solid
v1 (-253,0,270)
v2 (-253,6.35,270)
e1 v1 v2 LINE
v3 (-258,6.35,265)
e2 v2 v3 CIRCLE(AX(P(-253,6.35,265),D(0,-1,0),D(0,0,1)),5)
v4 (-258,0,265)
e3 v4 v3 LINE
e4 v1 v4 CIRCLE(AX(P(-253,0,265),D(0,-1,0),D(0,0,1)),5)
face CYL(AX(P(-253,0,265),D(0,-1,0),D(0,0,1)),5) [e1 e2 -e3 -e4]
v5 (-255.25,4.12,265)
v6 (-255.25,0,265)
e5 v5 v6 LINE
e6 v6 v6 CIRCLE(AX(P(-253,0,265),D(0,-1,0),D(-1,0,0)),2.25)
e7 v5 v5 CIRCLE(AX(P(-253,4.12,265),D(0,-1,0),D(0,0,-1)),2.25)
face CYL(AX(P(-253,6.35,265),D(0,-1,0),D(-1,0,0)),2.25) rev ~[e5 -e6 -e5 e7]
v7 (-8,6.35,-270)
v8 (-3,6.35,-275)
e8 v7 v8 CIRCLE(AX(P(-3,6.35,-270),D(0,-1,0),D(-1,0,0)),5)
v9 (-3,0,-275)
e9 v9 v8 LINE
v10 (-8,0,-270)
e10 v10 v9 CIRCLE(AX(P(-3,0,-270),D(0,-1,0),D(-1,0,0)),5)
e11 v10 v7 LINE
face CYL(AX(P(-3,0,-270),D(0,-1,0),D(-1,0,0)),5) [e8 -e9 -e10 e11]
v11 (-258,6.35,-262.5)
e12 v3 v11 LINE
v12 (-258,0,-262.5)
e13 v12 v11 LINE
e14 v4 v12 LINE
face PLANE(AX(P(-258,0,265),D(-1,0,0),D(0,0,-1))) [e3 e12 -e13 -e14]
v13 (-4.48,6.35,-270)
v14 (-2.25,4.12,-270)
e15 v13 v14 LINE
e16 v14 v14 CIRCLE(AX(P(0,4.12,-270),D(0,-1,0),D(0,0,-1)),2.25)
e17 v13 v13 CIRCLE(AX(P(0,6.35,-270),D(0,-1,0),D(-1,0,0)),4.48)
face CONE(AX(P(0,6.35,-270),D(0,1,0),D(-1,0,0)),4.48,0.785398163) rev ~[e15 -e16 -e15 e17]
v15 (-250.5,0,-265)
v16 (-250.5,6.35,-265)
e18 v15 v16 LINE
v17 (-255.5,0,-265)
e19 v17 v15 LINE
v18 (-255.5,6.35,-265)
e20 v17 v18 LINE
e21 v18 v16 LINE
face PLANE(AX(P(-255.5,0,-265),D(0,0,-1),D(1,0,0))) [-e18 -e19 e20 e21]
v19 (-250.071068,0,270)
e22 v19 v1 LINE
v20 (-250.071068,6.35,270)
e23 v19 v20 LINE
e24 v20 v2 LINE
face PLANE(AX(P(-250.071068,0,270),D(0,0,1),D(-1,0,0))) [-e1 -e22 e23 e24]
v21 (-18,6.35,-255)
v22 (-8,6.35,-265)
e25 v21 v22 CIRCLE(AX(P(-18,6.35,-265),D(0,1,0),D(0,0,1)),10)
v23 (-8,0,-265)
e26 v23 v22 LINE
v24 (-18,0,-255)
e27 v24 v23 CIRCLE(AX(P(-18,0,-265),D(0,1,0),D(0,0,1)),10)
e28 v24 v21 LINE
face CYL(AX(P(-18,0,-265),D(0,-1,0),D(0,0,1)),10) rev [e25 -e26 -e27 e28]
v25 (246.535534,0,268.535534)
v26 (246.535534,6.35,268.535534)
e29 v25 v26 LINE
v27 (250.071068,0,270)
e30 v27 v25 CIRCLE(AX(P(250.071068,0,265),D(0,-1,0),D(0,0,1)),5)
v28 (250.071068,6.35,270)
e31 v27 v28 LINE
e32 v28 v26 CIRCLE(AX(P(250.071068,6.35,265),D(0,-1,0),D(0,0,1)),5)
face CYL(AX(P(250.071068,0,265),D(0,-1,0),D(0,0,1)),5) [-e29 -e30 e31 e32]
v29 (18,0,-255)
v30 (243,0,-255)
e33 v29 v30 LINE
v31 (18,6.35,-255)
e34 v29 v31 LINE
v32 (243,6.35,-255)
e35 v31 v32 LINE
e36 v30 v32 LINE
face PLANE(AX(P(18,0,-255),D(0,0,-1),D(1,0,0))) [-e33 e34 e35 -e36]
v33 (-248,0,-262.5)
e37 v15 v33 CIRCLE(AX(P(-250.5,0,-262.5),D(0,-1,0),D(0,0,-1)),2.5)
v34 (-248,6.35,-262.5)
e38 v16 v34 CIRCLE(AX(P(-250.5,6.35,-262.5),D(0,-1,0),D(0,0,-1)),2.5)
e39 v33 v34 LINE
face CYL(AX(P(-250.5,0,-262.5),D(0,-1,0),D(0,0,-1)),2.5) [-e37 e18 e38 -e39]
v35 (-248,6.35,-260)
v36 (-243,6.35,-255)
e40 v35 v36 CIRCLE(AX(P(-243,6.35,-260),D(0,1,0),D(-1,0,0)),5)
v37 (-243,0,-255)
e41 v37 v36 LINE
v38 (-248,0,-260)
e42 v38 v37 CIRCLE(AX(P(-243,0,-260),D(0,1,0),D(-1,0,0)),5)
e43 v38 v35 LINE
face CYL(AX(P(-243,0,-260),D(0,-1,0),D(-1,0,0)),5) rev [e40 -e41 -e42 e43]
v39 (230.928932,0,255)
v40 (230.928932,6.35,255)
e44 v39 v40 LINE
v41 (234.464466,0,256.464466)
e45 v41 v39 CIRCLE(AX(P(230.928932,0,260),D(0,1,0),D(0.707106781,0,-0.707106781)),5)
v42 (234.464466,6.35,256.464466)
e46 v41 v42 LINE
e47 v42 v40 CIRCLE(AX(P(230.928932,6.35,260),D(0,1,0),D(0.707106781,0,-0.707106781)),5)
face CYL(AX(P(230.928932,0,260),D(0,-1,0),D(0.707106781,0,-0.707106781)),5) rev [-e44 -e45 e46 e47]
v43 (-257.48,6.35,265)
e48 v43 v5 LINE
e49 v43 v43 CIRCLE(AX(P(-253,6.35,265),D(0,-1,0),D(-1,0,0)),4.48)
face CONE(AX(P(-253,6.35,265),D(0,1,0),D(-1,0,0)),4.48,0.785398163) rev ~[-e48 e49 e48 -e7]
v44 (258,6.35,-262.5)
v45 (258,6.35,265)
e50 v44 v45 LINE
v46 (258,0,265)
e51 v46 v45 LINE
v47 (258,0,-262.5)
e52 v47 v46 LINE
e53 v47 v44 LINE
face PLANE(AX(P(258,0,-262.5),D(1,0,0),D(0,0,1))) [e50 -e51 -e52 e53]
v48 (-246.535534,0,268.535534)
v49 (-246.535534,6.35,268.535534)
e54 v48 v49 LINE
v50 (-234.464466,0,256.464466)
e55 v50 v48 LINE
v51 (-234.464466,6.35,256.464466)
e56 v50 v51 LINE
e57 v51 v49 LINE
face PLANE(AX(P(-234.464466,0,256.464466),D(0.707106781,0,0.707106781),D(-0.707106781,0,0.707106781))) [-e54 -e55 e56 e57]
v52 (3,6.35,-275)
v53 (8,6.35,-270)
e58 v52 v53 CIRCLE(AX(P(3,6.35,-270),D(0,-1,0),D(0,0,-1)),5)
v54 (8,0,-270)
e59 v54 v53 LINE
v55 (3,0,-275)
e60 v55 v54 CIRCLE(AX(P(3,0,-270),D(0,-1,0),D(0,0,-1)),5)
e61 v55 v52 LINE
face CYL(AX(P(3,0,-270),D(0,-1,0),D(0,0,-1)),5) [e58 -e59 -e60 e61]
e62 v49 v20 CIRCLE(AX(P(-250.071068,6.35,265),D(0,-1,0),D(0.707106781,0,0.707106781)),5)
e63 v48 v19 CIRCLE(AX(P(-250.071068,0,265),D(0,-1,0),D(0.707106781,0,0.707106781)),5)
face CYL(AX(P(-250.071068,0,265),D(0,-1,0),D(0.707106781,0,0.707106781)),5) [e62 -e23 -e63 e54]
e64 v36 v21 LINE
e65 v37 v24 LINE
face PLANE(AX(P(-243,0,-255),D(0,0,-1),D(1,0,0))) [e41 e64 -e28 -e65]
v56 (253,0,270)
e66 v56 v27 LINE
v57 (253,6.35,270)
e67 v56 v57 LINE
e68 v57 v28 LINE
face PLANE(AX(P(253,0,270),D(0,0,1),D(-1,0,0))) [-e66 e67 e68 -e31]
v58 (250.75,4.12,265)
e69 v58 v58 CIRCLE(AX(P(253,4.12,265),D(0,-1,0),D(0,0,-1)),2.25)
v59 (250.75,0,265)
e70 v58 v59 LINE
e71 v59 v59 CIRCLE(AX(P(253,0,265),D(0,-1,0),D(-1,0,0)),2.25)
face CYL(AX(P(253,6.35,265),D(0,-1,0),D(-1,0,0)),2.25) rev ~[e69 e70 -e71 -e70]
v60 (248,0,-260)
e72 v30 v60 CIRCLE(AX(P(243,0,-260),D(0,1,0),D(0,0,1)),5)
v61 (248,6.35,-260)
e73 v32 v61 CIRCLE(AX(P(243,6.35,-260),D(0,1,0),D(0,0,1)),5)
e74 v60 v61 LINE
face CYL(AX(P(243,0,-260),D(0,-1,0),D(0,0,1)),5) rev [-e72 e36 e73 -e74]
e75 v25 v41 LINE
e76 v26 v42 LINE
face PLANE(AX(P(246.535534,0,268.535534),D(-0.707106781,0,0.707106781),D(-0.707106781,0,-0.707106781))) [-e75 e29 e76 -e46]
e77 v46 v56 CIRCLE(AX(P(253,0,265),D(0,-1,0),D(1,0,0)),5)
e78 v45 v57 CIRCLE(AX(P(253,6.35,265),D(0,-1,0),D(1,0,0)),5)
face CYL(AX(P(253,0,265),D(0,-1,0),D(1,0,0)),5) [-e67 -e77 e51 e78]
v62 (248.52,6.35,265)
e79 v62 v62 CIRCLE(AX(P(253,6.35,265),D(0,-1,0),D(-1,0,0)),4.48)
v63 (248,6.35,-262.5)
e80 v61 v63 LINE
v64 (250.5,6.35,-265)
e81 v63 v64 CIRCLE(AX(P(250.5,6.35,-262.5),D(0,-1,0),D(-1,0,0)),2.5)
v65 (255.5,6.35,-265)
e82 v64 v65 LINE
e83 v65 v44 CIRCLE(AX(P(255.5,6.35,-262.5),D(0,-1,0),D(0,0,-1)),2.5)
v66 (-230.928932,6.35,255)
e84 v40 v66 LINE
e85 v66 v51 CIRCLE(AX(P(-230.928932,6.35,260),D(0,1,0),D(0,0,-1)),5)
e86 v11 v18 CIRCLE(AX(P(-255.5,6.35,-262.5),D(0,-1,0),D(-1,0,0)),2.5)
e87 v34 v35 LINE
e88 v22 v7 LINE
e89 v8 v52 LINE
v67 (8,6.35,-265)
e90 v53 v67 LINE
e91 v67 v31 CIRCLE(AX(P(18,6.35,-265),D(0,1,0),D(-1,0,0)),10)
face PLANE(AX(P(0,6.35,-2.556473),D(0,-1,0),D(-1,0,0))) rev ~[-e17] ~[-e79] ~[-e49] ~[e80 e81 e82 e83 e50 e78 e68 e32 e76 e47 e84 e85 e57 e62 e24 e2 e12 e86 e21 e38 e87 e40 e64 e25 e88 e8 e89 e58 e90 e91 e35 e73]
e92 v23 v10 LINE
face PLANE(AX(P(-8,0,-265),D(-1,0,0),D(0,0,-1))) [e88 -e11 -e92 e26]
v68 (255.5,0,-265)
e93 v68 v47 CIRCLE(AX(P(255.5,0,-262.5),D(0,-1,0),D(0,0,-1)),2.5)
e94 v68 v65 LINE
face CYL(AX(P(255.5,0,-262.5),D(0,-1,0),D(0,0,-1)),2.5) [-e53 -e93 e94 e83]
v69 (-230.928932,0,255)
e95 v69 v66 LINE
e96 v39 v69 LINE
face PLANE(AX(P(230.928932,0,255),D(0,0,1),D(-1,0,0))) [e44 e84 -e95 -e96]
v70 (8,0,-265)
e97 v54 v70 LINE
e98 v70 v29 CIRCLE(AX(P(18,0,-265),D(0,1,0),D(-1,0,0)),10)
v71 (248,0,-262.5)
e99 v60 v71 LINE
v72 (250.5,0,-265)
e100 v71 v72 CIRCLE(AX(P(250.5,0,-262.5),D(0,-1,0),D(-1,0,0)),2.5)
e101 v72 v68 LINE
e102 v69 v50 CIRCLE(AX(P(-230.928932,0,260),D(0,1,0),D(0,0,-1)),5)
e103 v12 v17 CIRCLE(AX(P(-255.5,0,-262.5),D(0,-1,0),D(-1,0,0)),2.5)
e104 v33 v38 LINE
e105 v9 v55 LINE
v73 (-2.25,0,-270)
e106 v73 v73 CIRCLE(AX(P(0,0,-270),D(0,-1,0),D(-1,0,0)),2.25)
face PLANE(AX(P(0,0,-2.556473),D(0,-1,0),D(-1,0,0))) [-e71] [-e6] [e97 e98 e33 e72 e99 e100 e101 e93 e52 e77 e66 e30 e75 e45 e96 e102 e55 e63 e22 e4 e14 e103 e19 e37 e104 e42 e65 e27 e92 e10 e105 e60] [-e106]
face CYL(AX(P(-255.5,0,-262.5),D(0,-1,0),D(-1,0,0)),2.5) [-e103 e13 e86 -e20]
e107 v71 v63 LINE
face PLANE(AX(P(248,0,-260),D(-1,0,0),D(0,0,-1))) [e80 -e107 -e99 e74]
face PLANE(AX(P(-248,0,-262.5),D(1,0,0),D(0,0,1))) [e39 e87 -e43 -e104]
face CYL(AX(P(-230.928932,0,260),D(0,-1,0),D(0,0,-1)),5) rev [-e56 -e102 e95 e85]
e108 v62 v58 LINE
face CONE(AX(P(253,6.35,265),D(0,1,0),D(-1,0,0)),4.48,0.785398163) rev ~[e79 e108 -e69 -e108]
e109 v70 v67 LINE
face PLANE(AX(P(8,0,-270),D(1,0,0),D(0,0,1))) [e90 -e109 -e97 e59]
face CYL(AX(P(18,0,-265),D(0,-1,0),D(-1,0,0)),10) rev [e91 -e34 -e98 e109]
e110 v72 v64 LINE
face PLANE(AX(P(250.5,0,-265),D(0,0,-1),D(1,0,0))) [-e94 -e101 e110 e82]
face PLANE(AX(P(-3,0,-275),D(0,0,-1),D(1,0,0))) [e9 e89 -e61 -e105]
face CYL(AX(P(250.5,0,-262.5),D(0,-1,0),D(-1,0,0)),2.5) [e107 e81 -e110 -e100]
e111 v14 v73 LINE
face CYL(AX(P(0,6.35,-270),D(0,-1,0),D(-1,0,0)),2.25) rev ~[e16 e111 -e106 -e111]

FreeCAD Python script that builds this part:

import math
import FreeCAD as App
import Part
import Sketcher

doc = App.newDocument("Part")
body = doc.addObject("PartDesign::Body", "Body")

# Sketch on XZ plane
sketch1 = body.newObject("Sketcher::SketchObject", "Sketch")
sketch1.AttachmentSupport = (doc.getObject("XZ_Plane"), [""])
sketch1.MapMode = "FlatFace"
sketch1.addGeometry(Part.LineSegment(App.Vector(-230.9, 255, 0), App.Vector(230.9, 255, 0)), False)
sketch1.addGeometry(Part.ArcOfCircle(Part.Circle(App.Vector(230.9, 260, 0), App.Vector(0, 0, 1), 5), math.radians(-90), math.radians(-45)), False)
sketch1.addGeometry(Part.LineSegment(App.Vector(234.5, 256.5, 0), App.Vector(246.5, 268.5, 0)), False)
sketch1.addGeometry(Part.ArcOfCircle(Part.Circle(App.Vector(250.1, 265, 0), App.Vector(0, 0, 1), 5), math.radians(90), math.radians(135)), False)
sketch1.addGeometry(Part.LineSegment(App.Vector(250.1, 270, 0), App.Vector(253, 270, 0)), False)
sketch1.addGeometry(Part.ArcOfCircle(Part.Circle(App.Vector(253, 265, 0), App.Vector(0, 0, 1), 5), math.radians(0), math.radians(90)), False)
sketch1.addGeometry(Part.LineSegment(App.Vector(258, 265, 0), App.Vector(258, -262.5, 0)), False)
sketch1.addGeometry(Part.ArcOfCircle(Part.Circle(App.Vector(255.5, -262.5, 0), App.Vector(0, 0, 1), 2.5), math.radians(-90), math.radians(0)), False)
sketch1.addGeometry(Part.LineSegment(App.Vector(255.5, -265, 0), App.Vector(250.5, -265, 0)), False)
sketch1.addGeometry(Part.ArcOfCircle(Part.Circle(App.Vector(250.5, -262.5, 0), App.Vector(0, 0, 1), 2.5), math.radians(180), math.radians(270)), False)
sketch1.addGeometry(Part.LineSegment(App.Vector(248, -262.5, 0), App.Vector(248, -260, 0)), False)
sketch1.addGeometry(Part.ArcOfCircle(Part.Circle(App.Vector(243, -260, 0), App.Vector(0, 0, 1), 5), math.radians(0), math.radians(90)), False)
sketch1.addGeometry(Part.LineSegment(App.Vector(243, -255, 0), App.Vector(18, -255, 0)), False)
sketch1.addGeometry(Part.ArcOfCircle(Part.Circle(App.Vector(18, -265, 0), App.Vector(0, 0, 1), 10), math.radians(90), math.radians(180)), False)
sketch1.addGeometry(Part.LineSegment(App.Vector(8, -265, 0), App.Vector(8, -270, 0)), False)
sketch1.addGeometry(Part.ArcOfCircle(Part.Circle(App.Vector(3, -270, 0), App.Vector(0, 0, 1), 5), math.radians(-90), math.radians(0)), False)
sketch1.addGeometry(Part.LineSegment(App.Vector(3, -275, 0), App.Vector(-3, -275, 0)), False)
sketch1.addGeometry(Part.ArcOfCircle(Part.Circle(App.Vector(-3, -270, 0), App.Vector(0, 0, 1), 5), math.radians(180), math.radians(270)), False)
sketch1.addGeometry(Part.LineSegment(App.Vector(-8, -270, 0), App.Vector(-8, -265, 0)), False)
sketch1.addGeometry(Part.ArcOfCircle(Part.Circle(App.Vector(-18, -265, 0), App.Vector(0, 0, 1), 10), math.radians(0), math.radians(90)), False)
sketch1.addGeometry(Part.LineSegment(App.Vector(-18, -255, 0), App.Vector(-243, -255, 0)), False)
sketch1.addGeometry(Part.ArcOfCircle(Part.Circle(App.Vector(-243, -260, 0), App.Vector(0, 0, 1), 5), math.radians(90), math.radians(180)), False)
sketch1.addGeometry(Part.LineSegment(App.Vector(-248, -260, 0), App.Vector(-248, -262.5, 0)), False)
sketch1.addGeometry(Part.ArcOfCircle(Part.Circle(App.Vector(-250.5, -262.5, 0), App.Vector(0, 0, 1), 2.5), math.radians(-90), math.radians(0)), False)
sketch1.addGeometry(Part.LineSegment(App.Vector(-250.5, -265, 0), App.Vector(-255.5, -265, 0)), False)
sketch1.addGeometry(Part.ArcOfCircle(Part.Circle(App.Vector(-255.5, -262.5, 0), App.Vector(0, 0, 1), 2.5), math.radians(180), math.radians(270)), False)
sketch1.addGeometry(Part.LineSegment(App.Vector(-258, -262.5, 0), App.Vector(-258, 265, 0)), False)
sketch1.addGeometry(Part.ArcOfCircle(Part.Circle(App.Vector(-253, 265, 0), App.Vector(0, 0, 1), 5), math.radians(90), math.radians(180)), False)
sketch1.addGeometry(Part.LineSegment(App.Vector(-253, 270, 0), App.Vector(-250.1, 270, 0)), False)
sketch1.addGeometry(Part.ArcOfCircle(Part.Circle(App.Vector(-250.1, 265, 0), App.Vector(0, 0, 1), 5), math.radians(45), math.radians(90)), False)
sketch1.addGeometry(Part.LineSegment(App.Vector(-246.5, 268.5, 0), App.Vector(-234.5, 256.5, 0)), False)
sketch1.addGeometry(Part.ArcOfCircle(Part.Circle(App.Vector(-230.9, 260, 0), App.Vector(0, 0, 1), 5), math.radians(-135), math.radians(-90)), False)
sketch1.addConstraint(Sketcher.Constraint("Tangent", 0, 2, 1, 1))
sketch1.addConstraint(Sketcher.Constraint("Tangent", 1, 2, 2, 1))
sketch1.addConstraint(Sketcher.Constraint("Tangent", 2, 2, 3, 2))
sketch1.addConstraint(Sketcher.Constraint("Tangent", 3, 1, 4, 1))
sketch1.addConstraint(Sketcher.Constraint("Tangent", 4, 2, 5, 2))
sketch1.addConstraint(Sketcher.Constraint("Tangent", 5, 1, 6, 1))
sketch1.addConstraint(Sketcher.Constraint("Tangent", 6, 2, 7, 2))
sketch1.addConstraint(Sketcher.Constraint("Tangent", 7, 1, 8, 1))
sketch1.addConstraint(Sketcher.Constraint("Tangent", 8, 2, 9, 2))
sketch1.addConstraint(Sketcher.Constraint("Tangent", 9, 1, 10, 1))
sketch1.addConstraint(Sketcher.Constraint("Tangent", 10, 2, 11, 1))
sketch1.addConstraint(Sketcher.Constraint("Tangent", 11, 2, 12, 1))
sketch1.addConstraint(Sketcher.Constraint("Tangent", 12, 2, 13, 1))
sketch1.addConstraint(Sketcher.Constraint("Tangent", 13, 2, 14, 1))
sketch1.addConstraint(Sketcher.Constraint("Tangent", 14, 2, 15, 2))
sketch1.addConstraint(Sketcher.Constraint("Tangent", 15, 1, 16, 1))
sketch1.addConstraint(Sketcher.Constraint("Tangent", 16, 2, 17, 2))
sketch1.addConstraint(Sketcher.Constraint("Tangent", 17, 1, 18, 1))
sketch1.addConstraint(Sketcher.Constraint("Tangent", 18, 2, 19, 1))
sketch1.addConstraint(Sketcher.Constraint("Tangent", 19, 2, 20, 1))
sketch1.addConstraint(Sketcher.Constraint("Tangent", 20, 2, 21, 1))
sketch1.addConstraint(Sketcher.Constraint("Tangent", 21, 2, 22, 1))
sketch1.addConstraint(Sketcher.Constraint("Tangent", 22, 2, 23, 2))
sketch1.addConstraint(Sketcher.Constraint("Tangent", 23, 1, 24, 1))
sketch1.addConstraint(Sketcher.Constraint("Tangent", 24, 2, 25, 2))
sketch1.addConstraint(Sketcher.Constraint("Tangent", 25, 1, 26, 1))
sketch1.addConstraint(Sketcher.Constraint("Tangent", 26, 2, 27, 2))
sketch1.addConstraint(Sketcher.Constraint("Tangent", 27, 1, 28, 1))
sketch1.addConstraint(Sketcher.Constraint("Tangent", 28, 2, 29, 2))
sketch1.addConstraint(Sketcher.Constraint("Tangent", 29, 1, 30, 1))
sketch1.addConstraint(Sketcher.Constraint("Tangent", 30, 2, 31, 1))
sketch1.addConstraint(Sketcher.Constraint("Tangent", 31, 2, 0, 1))
sketch1.addConstraint(Sketcher.Constraint("Horizontal", 0))
sketch1.addConstraint(Sketcher.Constraint("Horizontal", 4))
sketch1.addConstraint(Sketcher.Constraint("Vertical", 6))
sketch1.addConstraint(Sketcher.Constraint("Horizontal", 8))
sketch1.addConstraint(Sketcher.Constraint("Vertical", 10))
sketch1.addConstraint(Sketcher.Constraint("Horizontal", 12))
sketch1.addConstraint(Sketcher.Constraint("Vertical", 14))
sketch1.addConstraint(Sketcher.Constraint("Horizontal", 16))
sketch1.addConstraint(Sketcher.Constraint("Vertical", 18))
sketch1.addConstraint(Sketcher.Constraint("Horizontal", 20))
sketch1.addConstraint(Sketcher.Constraint("Vertical", 22))
sketch1.addConstraint(Sketcher.Constraint("Horizontal", 24))
sketch1.addConstraint(Sketcher.Constraint("Vertical", 26))
sketch1.addConstraint(Sketcher.Constraint("Horizontal", 28))
sketch1.addConstraint(Sketcher.Constraint("Equal", 1, 3))
sketch1.addConstraint(Sketcher.Constraint("Equal", 3, 5))
sketch1.addConstraint(Sketcher.Constraint("Equal", 7, 9))
sketch1.addConstraint(Sketcher.Constraint("Equal", 5, 11))
sketch1.addConstraint(Sketcher.Constraint("Equal", 11, 15))
sketch1.addConstraint(Sketcher.Constraint("Equal", 15, 17))
sketch1.addConstraint(Sketcher.Constraint("Equal", 13, 19))
sketch1.addConstraint(Sketcher.Constraint("Equal", 17, 21))
sketch1.addConstraint(Sketcher.Constraint("Equal", 9, 23))
sketch1.addConstraint(Sketcher.Constraint("Equal", 23, 25))
sketch1.addConstraint(Sketcher.Constraint("Equal", 21, 27))
sketch1.addConstraint(Sketcher.Constraint("Equal", 27, 29))
sketch1.addConstraint(Sketcher.Constraint("Equal", 29, 31))
sketch1.addConstraint(Sketcher.Constraint("Symmetric", 13, 3, 19, 3, -2))
sketch1.addConstraint(Sketcher.Constraint("Symmetric", 9, 3, 23, 3, -2))
sketch1.addConstraint(Sketcher.Constraint("Symmetric", 5, 3, 27, 3, -2))
sketch1.addConstraint(Sketcher.Constraint("Symmetric", 2, 2, 29, 1, -2))
sketch1.addConstraint(Sketcher.Constraint("Perpendicular", 2, 30))
sketch1.addConstraint(Sketcher.Constraint("Horizontal", 19, 3, 7, 1))
sketch1.addConstraint(Sketcher.Constraint("Equal", 24, 14))
sketch1.addConstraint(Sketcher.Constraint("Radius", 1, 5.0))
sketch1.addConstraint(Sketcher.Constraint("Radius", 13, 10.0))
sketch1.addConstraint(Sketcher.Constraint("Radius", 7, 2.5))
sketch1.addConstraint(Sketcher.Constraint("DistanceX", 8, 2, 8, 1, 5.0))
sketch1.addConstraint(Sketcher.Constraint("DistanceX", 12, 2, 12, 1, 225.0))
sketch1.addConstraint(Sketcher.Constraint("DistanceX", 16, 2, 16, 1, 6.0))
sketch1.addConstraint(Sketcher.Constraint("DistanceY", 6, 2, 6, 1, 527.5))
sketch1.addConstraint(Sketcher.Constraint("DistanceY", -1, 1, 1, 3, 260.0))
sketch1.addConstraint(Sketcher.Constraint("DistanceY", -1, 1, 3, 3, 265.0))
sketch1.addConstraint(Sketcher.Constraint("DistanceX", 29, 3, 1, 3, 481.0))
pad1 = body.newObject("PartDesign::Pad", "Pad")
pad1.Profile = sketch1
pad1.Length = 6.35
pad1.Reversed = True

# Sketch on XZ plane
sketch2 = body.newObject("Sketcher::SketchObject", "Sketch001")
sketch2.AttachmentSupport = (doc.getObject("XZ_Plane"), [""])
sketch2.MapMode = "FlatFace"
sketch2.AttachmentOffset = App.Placement(App.Vector(0, 0, -6.35), App.Rotation())
sketch2.addGeometry(Part.Circle(App.Vector(0, -270, 0), App.Vector(0, 0, 1), 2.2), False)
sketch2.addGeometry(Part.Circle(App.Vector(253, 265, 0), App.Vector(0, 0, 1), 2.2), False)
sketch2.addGeometry(Part.Circle(App.Vector(-253, 265, 0), App.Vector(0, 0, 1), 2.2), False)
sketch2.addConstraint(Sketcher.Constraint("Equal", 0, 1))
sketch2.addConstraint(Sketcher.Constraint("Equal", 1, 2))
sketch2.addConstraint(Sketcher.Constraint("Symmetric", 1, 3, 2, 3, -2))
sketch2.addConstraint(Sketcher.Constraint("PointOnObject", 0, 3, -2))
sketch2.addConstraint(Sketcher.Constraint("Diameter", 0, 4.5))
sketch2.addConstraint(Sketcher.Constraint("DistanceY", 0, 3, -1, 1, 270.0))
sketch2.addConstraint(Sketcher.Constraint("DistanceX", -1, 1, 1, 3, 253.0))
sketch2.addConstraint(Sketcher.Constraint("DistanceY", -1, 1, 1, 3, 265.0))
doc.recompute()
hole = body.newObject("PartDesign::Hole", "Hole")
hole.Profile = sketch2
hole.ThreadType = "None"
hole.Diameter = 4.5
hole.DepthType = "ThroughAll"
hole.HoleCutType = "Countersink"
hole.HoleCutDiameter = 8.96
hole.HoleCutCountersinkAngle = 90
hole.Reversed = True

doc.recompute()
